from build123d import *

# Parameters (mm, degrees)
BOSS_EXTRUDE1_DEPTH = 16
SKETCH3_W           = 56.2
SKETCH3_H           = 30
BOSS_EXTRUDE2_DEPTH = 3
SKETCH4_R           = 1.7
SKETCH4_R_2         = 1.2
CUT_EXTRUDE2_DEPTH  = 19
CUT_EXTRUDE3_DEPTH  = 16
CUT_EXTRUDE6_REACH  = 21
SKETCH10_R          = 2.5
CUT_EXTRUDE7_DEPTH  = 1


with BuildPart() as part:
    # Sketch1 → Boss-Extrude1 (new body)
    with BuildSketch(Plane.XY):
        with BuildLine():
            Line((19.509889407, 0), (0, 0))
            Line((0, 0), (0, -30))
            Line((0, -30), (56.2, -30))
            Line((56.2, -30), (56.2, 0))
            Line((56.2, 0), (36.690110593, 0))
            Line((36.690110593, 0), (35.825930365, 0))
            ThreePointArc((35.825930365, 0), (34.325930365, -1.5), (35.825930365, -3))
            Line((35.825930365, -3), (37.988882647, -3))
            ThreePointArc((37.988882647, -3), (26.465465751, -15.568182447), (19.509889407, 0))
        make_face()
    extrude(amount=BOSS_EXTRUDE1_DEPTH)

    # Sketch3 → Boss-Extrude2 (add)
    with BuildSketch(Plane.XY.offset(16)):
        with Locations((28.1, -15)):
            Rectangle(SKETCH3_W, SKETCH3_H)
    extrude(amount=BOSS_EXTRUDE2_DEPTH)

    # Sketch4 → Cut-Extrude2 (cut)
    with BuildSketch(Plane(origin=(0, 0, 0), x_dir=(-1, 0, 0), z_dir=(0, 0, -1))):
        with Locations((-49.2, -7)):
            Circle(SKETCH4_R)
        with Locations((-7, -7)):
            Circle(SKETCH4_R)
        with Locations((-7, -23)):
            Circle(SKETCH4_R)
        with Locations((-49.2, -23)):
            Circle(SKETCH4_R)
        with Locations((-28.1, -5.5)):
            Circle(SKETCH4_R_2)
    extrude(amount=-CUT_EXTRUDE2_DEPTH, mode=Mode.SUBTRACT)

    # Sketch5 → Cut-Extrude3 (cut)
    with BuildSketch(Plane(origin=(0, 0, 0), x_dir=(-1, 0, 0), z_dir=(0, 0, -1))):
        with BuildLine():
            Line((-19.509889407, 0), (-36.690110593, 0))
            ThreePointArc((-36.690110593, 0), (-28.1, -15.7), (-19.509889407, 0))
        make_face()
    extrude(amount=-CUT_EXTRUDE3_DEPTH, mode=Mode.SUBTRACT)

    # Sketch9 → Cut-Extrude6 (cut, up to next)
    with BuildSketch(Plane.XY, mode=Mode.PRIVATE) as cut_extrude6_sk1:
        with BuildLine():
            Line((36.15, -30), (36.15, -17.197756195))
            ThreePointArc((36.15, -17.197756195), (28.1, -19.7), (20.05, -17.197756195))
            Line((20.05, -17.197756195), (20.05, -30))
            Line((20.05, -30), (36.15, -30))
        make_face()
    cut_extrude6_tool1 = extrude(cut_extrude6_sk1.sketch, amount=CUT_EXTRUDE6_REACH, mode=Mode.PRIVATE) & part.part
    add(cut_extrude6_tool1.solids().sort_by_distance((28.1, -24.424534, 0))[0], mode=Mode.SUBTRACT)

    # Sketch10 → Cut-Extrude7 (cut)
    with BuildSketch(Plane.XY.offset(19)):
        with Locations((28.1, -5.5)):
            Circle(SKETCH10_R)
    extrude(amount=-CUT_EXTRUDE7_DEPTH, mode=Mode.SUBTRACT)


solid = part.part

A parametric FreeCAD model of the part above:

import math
import FreeCAD as App
import Part
import Sketcher
Q = App.Units.Quantity

doc = App.newDocument("Part")
body = doc.addObject("PartDesign::Body", "Body")

# Sketch on XY plane
sketch1 = body.newObject("Sketcher::SketchObject", "Sketch")
sketch1.AttachmentSupport = (doc.getObject("XY_Plane"), [""])
sketch1.MapMode = "FlatFace"
sketch1.addGeometry(Part.LineSegment(App.Vector(19.509889, 0, 0), App.Vector(0, 0, 0)), False)
sketch1.addGeometry(Part.LineSegment(App.Vector(0, 0, 0), App.Vector(0, -30, 0)), False)
sketch1.addGeometry(Part.LineSegment(App.Vector(0, -30, 0), App.Vector(56.2, -30, 0)), False)
sketch1.addGeometry(Part.LineSegment(App.Vector(56.2, -30, 0), App.Vector(56.2, 0, 0)), False)
sketch1.addGeometry(Part.LineSegment(App.Vector(56.2, 0, 0), App.Vector(35.82593, 0, 0)), False)
sketch1.addGeometry(Part.ArcOfCircle(Part.Circle(App.Vector(35.82593, -1.5, 0), App.Vector(0, 0, 1), 1.5), math.radians(90), math.radians(270)), False)
sketch1.addGeometry(Part.LineSegment(App.Vector(35.82593, -3, 0), App.Vector(37.988883, -3, 0)), False)
sketch1.addGeometry(Part.ArcOfCircle(Part.Circle(App.Vector(28.1, -5.5, 0), App.Vector(0, 0, 1), 10.2), math.radians(147.369737), math.radians(374.187628)), False)
sketch1.addConstraint(Sketcher.Constraint("Coincident", 0, 2, 1, 1))
sketch1.addConstraint(Sketcher.Constraint("Coincident", 1, 2, 2, 1))
sketch1.addConstraint(Sketcher.Constraint("Coincident", 2, 2, 3, 1))
sketch1.addConstraint(Sketcher.Constraint("Coincident", 3, 2, 4, 1))
sketch1.addConstraint(Sketcher.Constraint("Tangent", 4, 2, 5, 1))
sketch1.addConstraint(Sketcher.Constraint("Tangent", 5, 2, 6, 1))
sketch1.addConstraint(Sketcher.Constraint("Coincident", 6, 2, 7, 2))
sketch1.addConstraint(Sketcher.Constraint("Coincident", 7, 1, 0, 1))
sketch1.addConstraint(Sketcher.Constraint("Horizontal", 0))
sketch1.addConstraint(Sketcher.Constraint("Vertical", 1))
sketch1.addConstraint(Sketcher.Constraint("Horizontal", 2))
sketch1.addConstraint(Sketcher.Constraint("Vertical", 3))
sketch1.addConstraint(Sketcher.Constraint("Horizontal", 4))
sketch1.addConstraint(Sketcher.Constraint("Horizontal", 6))
sketch1.addConstraint(Sketcher.Constraint("Coincident", 0, 2, -1, 1))
sketch1.addConstraint(Sketcher.Constraint("PointOnObject", 3, 2, -1))
sketch1.addConstraint(Sketcher.Constraint("Radius", 5, Q("1.5 mm")))
sketch1.addConstraint(Sketcher.Constraint("Radius", 7, Q("10.2 mm")))
sketch1.addConstraint(Sketcher.Constraint("DistanceY", 1, 2, 1, 1, Q("30 mm")))
sketch1.addConstraint(Sketcher.Constraint("DistanceX", 2, 1, 2, 2, Q("56.2 mm")))
sketch1.addConstraint(Sketcher.Constraint("DistanceY", 7, 3, 5, 3, Q("4 mm")))
sketch1.addConstraint(Sketcher.Constraint("DistanceX", -1, 1, 7, 3, Q("28.1 mm")))
sketch1.addConstraint(Sketcher.Constraint("DistanceX", 4, 2, 4, 1, Q("20.37407 mm")))
pad1 = body.newObject("PartDesign::Pad", "Pad")
pad1.Profile = sketch1
pad1.Length = 16

# Sketch on XY plane
sketch2 = body.newObject("Sketcher::SketchObject", "Sketch001")
sketch2.AttachmentSupport = (doc.getObject("XY_Plane"), [""])
sketch2.MapMode = "FlatFace"
sketch2.AttachmentOffset = App.Placement(App.Vector(0, 0, 16), App.Rotation())
sketch2.addGeometry(Part.LineSegment(App.Vector(0, 0, 0), App.Vector(0, -30, 0)), False)
sketch2.addGeometry(Part.LineSegment(App.Vector(0, -30, 0), App.Vector(56.2, -30, 0)), False)
sketch2.addGeometry(Part.LineSegment(App.Vector(56.2, -30, 0), App.Vector(56.2, 0, 0)), False)
sketch2.addGeometry(Part.LineSegment(App.Vector(56.2, 0, 0), App.Vector(0, 0, 0)), False)
sketch2.addConstraint(Sketcher.Constraint("Coincident", 0, 2, 1, 1))
sketch2.addConstraint(Sketcher.Constraint("Coincident", 1, 2, 2, 1))
sketch2.addConstraint(Sketcher.Constraint("Coincident", 2, 2, 3, 1))
sketch2.addConstraint(Sketcher.Constraint("Coincident", 3, 2, 0, 1))
sketch2.addConstraint(Sketcher.Constraint("Vertical", 0))
sketch2.addConstraint(Sketcher.Constraint("Horizontal", 1))
sketch2.addConstraint(Sketcher.Constraint("Vertical", 2))
sketch2.addConstraint(Sketcher.Constraint("Horizontal", 3))
sketch2.addConstraint(Sketcher.Constraint("Coincident", 3, 2, -1, 1))
sketch2.addConstraint(Sketcher.Constraint("DistanceY", 0, 2, 0, 1, Q("30 mm")))
sketch2.addConstraint(Sketcher.Constraint("DistanceX", 1, 1, 1, 2, Q("56.2 mm")))
pad2 = body.newObject("PartDesign::Pad", "Pad001")
pad2.Profile = sketch2
pad2.Length = 3

# Sketch on XY plane
sketch3 = body.newObject("Sketcher::SketchObject", "Sketch002")
sketch3.AttachmentSupport = (doc.getObject("XY_Plane"), [""])
sketch3.MapMode = "FlatFace"
sketch3.addGeometry(Part.Circle(App.Vector(49.2, -7, 0), App.Vector(0, 0, 1), 1.7), False)
sketch3.addGeometry(Part.Circle(App.Vector(7, -7, 0), App.Vector(0, 0, 1), 1.7), False)
sketch3.addGeometry(Part.Circle(App.Vector(7, -23, 0), App.Vector(0, 0, 1), 1.7), False)
sketch3.addGeometry(Part.Circle(App.Vector(49.2, -23, 0), App.Vector(0, 0, 1), 1.7), False)
sketch3.addGeometry(Part.Circle(App.Vector(28.1, -5.5, 0), App.Vector(0, 0, 1), 1.2), False)
sketch3.addConstraint(Sketcher.Constraint("Equal", 0, 1))
sketch3.addConstraint(Sketcher.Constraint("Equal", 1, 2))
sketch3.addConstraint(Sketcher.Constraint("Equal", 2, 3))
sketch3.addConstraint(Sketcher.Constraint("Horizontal", 0, 3, 1, 3))
sketch3.addConstraint(Sketcher.Constraint("Horizontal", 2, 3, 3, 3))
sketch3.addConstraint(Sketcher.Constraint("Vertical", 1, 3, 2, 3))
sketch3.addConstraint(Sketcher.Constraint("Vertical", 0, 3, 3, 3))
sketch3.addConstraint(Sketcher.Constraint("Diameter", 0, Q("3.4 mm")))
sketch3.addConstraint(Sketcher.Constraint("Diameter", 4, Q("2.4 mm")))
sketch3.addConstraint(Sketcher.Constraint("DistanceY", 0, 3, -1, 1, Q("7 mm")))
sketch3.addConstraint(Sketcher.Constraint("DistanceX", -1, 1, 1, 3, Q("7 mm")))
sketch3.addConstraint(Sketcher.Constraint("DistanceY", 2, 3, -1, 1, Q("23 mm")))
sketch3.addConstraint(Sketcher.Constraint("DistanceX", -1, 1, 0, 3, Q("49.2 mm")))
sketch3.addConstraint(Sketcher.Constraint("DistanceX", -1, 1, 4, 3, Q("28.1 mm")))
sketch3.addConstraint(Sketcher.Constraint("DistanceY", 4, 3, -1, 1, Q("5.5 mm")))
pocket1 = body.newObject("PartDesign::Pocket", "Pocket")
pocket1.Profile = sketch3
pocket1.Length = 19
pocket1.Reversed = True

# Sketch on XY plane
sketch4 = body.newObject("Sketcher::SketchObject", "Sketch003")
sketch4.AttachmentSupport = (doc.getObject("XY_Plane"), [""])
sketch4.MapMode = "FlatFace"
sketch4.addGeometry(Part.LineSegment(App.Vector(19.509889, 0, 0), App.Vector(36.690111, 0, 0)), False)
sketch4.addGeometry(Part.ArcOfCircle(Part.Circle(App.Vector(28.1, -5.5, 0), App.Vector(0, 0, 1), 10.2), math.radians(147.369737), math.radians(392.630263)), False)
sketch4.addConstraint(Sketcher.Constraint("Coincident", 0, 1, 1, 1))
sketch4.addConstraint(Sketcher.Constraint("Coincident", 1, 2, 0, 2))
sketch4.addConstraint(Sketcher.Constraint("Horizontal", 0))
sketch4.addConstraint(Sketcher.Constraint("PointOnObject", 0, 1, -1))
sketch4.addConstraint(Sketcher.Constraint("Radius", 1, Q("10.2 mm")))
sketch4.addConstraint(Sketcher.Constraint("DistanceX", -1, 1, 1, 3, Q("28.1 mm")))
sketch4.addConstraint(Sketcher.Constraint("DistanceY", 1, 3, -1, 1, Q("5.5 mm")))
pocket2 = body.newObject("PartDesign::Pocket", "Pocket001")
pocket2.Profile = sketch4
pocket2.Length = 16
pocket2.Reversed = True

# Sketch on XY plane
sketch5 = body.newObject("Sketcher::SketchObject", "Sketch004")
sketch5.AttachmentSupport = (doc.getObject("XY_Plane"), [""])
sketch5.MapMode = "FlatFace"
sketch5.addGeometry(Part.LineSegment(App.Vector(36.15, -30, 0), App.Vector(36.15, -17.197756, 0)), False)
sketch5.addGeometry(Part.ArcOfCircle(Part.Circle(App.Vector(28.1, -5.5, 0), App.Vector(0, 0, 1), 14.2), math.radians(-124.534433), math.radians(-55.465567)), False)
sketch5.addGeometry(Part.LineSegment(App.Vector(20.05, -17.197756, 0), App.Vector(20.05, -30, 0)), False)
sketch5.addGeometry(Part.LineSegment(App.Vector(20.05, -30, 0), App.Vector(36.15, -30, 0)), False)
sketch5.addConstraint(Sketcher.Constraint("Coincident", 0, 2, 1, 2))
sketch5.addConstraint(Sketcher.Constraint("Coincident", 1, 1, 2, 1))
sketch5.addConstraint(Sketcher.Constraint("Coincident", 2, 2, 3, 1))
sketch5.addConstraint(Sketcher.Constraint("Coincident", 3, 2, 0, 1))
sketch5.addConstraint(Sketcher.Constraint("Vertical", 0))
sketch5.addConstraint(Sketcher.Constraint("Vertical", 2))
sketch5.addConstraint(Sketcher.Constraint("Horizontal", 3))
sketch5.addConstraint(Sketcher.Constraint("Horizontal", 0, 2, 1, 1))
sketch5.addConstraint(Sketcher.Constraint("Radius", 1, Q("14.2 mm")))
sketch5.addConstraint(Sketcher.Constraint("DistanceX", 3, 1, 3, 2, Q("16.1 mm")))
sketch5.addConstraint(Sketcher.Constraint("DistanceY", 2, 2, -1, 1, Q("30 mm")))
sketch5.addConstraint(Sketcher.Constraint("DistanceX", -1, 1, 1, 3, Q("28.1 mm")))
sketch5.addConstraint(Sketcher.Constraint("DistanceY", 1, 3, -1, 1, Q("5.5 mm")))
pocket3 = body.newObject("PartDesign::Pocket", "Pocket002")
pocket3.Profile = sketch5
pocket3.Type = "UpToFirst"
pocket3.Reversed = True

# Sketch on XY plane
sketch6 = body.newObject("Sketcher::SketchObject", "Sketch005")
sketch6.AttachmentSupport = (doc.getObject("XY_Plane"), [""])
sketch6.MapMode = "FlatFace"
sketch6.AttachmentOffset = App.Placement(App.Vector(0, 0, 19), App.Rotation())
sketch6.addGeometry(Part.Circle(App.Vector(28.1, -5.5, 0), App.Vector(0, 0, 1), 2.5), False)
sketch6.addConstraint(Sketcher.Constraint("Diameter", 0, Q("5 mm")))
sketch6.addConstraint(Sketcher.Constraint("DistanceX", -1, 1, 0, 3, Q("28.1 mm")))
sketch6.addConstraint(Sketcher.Constraint("DistanceY", 0, 3, -1, 1, Q("5.5 mm")))
pocket4 = body.newObject("PartDesign::Pocket", "Pocket003")
pocket4.Profile = sketch6
pocket4.Length = 1

doc.recompute()
